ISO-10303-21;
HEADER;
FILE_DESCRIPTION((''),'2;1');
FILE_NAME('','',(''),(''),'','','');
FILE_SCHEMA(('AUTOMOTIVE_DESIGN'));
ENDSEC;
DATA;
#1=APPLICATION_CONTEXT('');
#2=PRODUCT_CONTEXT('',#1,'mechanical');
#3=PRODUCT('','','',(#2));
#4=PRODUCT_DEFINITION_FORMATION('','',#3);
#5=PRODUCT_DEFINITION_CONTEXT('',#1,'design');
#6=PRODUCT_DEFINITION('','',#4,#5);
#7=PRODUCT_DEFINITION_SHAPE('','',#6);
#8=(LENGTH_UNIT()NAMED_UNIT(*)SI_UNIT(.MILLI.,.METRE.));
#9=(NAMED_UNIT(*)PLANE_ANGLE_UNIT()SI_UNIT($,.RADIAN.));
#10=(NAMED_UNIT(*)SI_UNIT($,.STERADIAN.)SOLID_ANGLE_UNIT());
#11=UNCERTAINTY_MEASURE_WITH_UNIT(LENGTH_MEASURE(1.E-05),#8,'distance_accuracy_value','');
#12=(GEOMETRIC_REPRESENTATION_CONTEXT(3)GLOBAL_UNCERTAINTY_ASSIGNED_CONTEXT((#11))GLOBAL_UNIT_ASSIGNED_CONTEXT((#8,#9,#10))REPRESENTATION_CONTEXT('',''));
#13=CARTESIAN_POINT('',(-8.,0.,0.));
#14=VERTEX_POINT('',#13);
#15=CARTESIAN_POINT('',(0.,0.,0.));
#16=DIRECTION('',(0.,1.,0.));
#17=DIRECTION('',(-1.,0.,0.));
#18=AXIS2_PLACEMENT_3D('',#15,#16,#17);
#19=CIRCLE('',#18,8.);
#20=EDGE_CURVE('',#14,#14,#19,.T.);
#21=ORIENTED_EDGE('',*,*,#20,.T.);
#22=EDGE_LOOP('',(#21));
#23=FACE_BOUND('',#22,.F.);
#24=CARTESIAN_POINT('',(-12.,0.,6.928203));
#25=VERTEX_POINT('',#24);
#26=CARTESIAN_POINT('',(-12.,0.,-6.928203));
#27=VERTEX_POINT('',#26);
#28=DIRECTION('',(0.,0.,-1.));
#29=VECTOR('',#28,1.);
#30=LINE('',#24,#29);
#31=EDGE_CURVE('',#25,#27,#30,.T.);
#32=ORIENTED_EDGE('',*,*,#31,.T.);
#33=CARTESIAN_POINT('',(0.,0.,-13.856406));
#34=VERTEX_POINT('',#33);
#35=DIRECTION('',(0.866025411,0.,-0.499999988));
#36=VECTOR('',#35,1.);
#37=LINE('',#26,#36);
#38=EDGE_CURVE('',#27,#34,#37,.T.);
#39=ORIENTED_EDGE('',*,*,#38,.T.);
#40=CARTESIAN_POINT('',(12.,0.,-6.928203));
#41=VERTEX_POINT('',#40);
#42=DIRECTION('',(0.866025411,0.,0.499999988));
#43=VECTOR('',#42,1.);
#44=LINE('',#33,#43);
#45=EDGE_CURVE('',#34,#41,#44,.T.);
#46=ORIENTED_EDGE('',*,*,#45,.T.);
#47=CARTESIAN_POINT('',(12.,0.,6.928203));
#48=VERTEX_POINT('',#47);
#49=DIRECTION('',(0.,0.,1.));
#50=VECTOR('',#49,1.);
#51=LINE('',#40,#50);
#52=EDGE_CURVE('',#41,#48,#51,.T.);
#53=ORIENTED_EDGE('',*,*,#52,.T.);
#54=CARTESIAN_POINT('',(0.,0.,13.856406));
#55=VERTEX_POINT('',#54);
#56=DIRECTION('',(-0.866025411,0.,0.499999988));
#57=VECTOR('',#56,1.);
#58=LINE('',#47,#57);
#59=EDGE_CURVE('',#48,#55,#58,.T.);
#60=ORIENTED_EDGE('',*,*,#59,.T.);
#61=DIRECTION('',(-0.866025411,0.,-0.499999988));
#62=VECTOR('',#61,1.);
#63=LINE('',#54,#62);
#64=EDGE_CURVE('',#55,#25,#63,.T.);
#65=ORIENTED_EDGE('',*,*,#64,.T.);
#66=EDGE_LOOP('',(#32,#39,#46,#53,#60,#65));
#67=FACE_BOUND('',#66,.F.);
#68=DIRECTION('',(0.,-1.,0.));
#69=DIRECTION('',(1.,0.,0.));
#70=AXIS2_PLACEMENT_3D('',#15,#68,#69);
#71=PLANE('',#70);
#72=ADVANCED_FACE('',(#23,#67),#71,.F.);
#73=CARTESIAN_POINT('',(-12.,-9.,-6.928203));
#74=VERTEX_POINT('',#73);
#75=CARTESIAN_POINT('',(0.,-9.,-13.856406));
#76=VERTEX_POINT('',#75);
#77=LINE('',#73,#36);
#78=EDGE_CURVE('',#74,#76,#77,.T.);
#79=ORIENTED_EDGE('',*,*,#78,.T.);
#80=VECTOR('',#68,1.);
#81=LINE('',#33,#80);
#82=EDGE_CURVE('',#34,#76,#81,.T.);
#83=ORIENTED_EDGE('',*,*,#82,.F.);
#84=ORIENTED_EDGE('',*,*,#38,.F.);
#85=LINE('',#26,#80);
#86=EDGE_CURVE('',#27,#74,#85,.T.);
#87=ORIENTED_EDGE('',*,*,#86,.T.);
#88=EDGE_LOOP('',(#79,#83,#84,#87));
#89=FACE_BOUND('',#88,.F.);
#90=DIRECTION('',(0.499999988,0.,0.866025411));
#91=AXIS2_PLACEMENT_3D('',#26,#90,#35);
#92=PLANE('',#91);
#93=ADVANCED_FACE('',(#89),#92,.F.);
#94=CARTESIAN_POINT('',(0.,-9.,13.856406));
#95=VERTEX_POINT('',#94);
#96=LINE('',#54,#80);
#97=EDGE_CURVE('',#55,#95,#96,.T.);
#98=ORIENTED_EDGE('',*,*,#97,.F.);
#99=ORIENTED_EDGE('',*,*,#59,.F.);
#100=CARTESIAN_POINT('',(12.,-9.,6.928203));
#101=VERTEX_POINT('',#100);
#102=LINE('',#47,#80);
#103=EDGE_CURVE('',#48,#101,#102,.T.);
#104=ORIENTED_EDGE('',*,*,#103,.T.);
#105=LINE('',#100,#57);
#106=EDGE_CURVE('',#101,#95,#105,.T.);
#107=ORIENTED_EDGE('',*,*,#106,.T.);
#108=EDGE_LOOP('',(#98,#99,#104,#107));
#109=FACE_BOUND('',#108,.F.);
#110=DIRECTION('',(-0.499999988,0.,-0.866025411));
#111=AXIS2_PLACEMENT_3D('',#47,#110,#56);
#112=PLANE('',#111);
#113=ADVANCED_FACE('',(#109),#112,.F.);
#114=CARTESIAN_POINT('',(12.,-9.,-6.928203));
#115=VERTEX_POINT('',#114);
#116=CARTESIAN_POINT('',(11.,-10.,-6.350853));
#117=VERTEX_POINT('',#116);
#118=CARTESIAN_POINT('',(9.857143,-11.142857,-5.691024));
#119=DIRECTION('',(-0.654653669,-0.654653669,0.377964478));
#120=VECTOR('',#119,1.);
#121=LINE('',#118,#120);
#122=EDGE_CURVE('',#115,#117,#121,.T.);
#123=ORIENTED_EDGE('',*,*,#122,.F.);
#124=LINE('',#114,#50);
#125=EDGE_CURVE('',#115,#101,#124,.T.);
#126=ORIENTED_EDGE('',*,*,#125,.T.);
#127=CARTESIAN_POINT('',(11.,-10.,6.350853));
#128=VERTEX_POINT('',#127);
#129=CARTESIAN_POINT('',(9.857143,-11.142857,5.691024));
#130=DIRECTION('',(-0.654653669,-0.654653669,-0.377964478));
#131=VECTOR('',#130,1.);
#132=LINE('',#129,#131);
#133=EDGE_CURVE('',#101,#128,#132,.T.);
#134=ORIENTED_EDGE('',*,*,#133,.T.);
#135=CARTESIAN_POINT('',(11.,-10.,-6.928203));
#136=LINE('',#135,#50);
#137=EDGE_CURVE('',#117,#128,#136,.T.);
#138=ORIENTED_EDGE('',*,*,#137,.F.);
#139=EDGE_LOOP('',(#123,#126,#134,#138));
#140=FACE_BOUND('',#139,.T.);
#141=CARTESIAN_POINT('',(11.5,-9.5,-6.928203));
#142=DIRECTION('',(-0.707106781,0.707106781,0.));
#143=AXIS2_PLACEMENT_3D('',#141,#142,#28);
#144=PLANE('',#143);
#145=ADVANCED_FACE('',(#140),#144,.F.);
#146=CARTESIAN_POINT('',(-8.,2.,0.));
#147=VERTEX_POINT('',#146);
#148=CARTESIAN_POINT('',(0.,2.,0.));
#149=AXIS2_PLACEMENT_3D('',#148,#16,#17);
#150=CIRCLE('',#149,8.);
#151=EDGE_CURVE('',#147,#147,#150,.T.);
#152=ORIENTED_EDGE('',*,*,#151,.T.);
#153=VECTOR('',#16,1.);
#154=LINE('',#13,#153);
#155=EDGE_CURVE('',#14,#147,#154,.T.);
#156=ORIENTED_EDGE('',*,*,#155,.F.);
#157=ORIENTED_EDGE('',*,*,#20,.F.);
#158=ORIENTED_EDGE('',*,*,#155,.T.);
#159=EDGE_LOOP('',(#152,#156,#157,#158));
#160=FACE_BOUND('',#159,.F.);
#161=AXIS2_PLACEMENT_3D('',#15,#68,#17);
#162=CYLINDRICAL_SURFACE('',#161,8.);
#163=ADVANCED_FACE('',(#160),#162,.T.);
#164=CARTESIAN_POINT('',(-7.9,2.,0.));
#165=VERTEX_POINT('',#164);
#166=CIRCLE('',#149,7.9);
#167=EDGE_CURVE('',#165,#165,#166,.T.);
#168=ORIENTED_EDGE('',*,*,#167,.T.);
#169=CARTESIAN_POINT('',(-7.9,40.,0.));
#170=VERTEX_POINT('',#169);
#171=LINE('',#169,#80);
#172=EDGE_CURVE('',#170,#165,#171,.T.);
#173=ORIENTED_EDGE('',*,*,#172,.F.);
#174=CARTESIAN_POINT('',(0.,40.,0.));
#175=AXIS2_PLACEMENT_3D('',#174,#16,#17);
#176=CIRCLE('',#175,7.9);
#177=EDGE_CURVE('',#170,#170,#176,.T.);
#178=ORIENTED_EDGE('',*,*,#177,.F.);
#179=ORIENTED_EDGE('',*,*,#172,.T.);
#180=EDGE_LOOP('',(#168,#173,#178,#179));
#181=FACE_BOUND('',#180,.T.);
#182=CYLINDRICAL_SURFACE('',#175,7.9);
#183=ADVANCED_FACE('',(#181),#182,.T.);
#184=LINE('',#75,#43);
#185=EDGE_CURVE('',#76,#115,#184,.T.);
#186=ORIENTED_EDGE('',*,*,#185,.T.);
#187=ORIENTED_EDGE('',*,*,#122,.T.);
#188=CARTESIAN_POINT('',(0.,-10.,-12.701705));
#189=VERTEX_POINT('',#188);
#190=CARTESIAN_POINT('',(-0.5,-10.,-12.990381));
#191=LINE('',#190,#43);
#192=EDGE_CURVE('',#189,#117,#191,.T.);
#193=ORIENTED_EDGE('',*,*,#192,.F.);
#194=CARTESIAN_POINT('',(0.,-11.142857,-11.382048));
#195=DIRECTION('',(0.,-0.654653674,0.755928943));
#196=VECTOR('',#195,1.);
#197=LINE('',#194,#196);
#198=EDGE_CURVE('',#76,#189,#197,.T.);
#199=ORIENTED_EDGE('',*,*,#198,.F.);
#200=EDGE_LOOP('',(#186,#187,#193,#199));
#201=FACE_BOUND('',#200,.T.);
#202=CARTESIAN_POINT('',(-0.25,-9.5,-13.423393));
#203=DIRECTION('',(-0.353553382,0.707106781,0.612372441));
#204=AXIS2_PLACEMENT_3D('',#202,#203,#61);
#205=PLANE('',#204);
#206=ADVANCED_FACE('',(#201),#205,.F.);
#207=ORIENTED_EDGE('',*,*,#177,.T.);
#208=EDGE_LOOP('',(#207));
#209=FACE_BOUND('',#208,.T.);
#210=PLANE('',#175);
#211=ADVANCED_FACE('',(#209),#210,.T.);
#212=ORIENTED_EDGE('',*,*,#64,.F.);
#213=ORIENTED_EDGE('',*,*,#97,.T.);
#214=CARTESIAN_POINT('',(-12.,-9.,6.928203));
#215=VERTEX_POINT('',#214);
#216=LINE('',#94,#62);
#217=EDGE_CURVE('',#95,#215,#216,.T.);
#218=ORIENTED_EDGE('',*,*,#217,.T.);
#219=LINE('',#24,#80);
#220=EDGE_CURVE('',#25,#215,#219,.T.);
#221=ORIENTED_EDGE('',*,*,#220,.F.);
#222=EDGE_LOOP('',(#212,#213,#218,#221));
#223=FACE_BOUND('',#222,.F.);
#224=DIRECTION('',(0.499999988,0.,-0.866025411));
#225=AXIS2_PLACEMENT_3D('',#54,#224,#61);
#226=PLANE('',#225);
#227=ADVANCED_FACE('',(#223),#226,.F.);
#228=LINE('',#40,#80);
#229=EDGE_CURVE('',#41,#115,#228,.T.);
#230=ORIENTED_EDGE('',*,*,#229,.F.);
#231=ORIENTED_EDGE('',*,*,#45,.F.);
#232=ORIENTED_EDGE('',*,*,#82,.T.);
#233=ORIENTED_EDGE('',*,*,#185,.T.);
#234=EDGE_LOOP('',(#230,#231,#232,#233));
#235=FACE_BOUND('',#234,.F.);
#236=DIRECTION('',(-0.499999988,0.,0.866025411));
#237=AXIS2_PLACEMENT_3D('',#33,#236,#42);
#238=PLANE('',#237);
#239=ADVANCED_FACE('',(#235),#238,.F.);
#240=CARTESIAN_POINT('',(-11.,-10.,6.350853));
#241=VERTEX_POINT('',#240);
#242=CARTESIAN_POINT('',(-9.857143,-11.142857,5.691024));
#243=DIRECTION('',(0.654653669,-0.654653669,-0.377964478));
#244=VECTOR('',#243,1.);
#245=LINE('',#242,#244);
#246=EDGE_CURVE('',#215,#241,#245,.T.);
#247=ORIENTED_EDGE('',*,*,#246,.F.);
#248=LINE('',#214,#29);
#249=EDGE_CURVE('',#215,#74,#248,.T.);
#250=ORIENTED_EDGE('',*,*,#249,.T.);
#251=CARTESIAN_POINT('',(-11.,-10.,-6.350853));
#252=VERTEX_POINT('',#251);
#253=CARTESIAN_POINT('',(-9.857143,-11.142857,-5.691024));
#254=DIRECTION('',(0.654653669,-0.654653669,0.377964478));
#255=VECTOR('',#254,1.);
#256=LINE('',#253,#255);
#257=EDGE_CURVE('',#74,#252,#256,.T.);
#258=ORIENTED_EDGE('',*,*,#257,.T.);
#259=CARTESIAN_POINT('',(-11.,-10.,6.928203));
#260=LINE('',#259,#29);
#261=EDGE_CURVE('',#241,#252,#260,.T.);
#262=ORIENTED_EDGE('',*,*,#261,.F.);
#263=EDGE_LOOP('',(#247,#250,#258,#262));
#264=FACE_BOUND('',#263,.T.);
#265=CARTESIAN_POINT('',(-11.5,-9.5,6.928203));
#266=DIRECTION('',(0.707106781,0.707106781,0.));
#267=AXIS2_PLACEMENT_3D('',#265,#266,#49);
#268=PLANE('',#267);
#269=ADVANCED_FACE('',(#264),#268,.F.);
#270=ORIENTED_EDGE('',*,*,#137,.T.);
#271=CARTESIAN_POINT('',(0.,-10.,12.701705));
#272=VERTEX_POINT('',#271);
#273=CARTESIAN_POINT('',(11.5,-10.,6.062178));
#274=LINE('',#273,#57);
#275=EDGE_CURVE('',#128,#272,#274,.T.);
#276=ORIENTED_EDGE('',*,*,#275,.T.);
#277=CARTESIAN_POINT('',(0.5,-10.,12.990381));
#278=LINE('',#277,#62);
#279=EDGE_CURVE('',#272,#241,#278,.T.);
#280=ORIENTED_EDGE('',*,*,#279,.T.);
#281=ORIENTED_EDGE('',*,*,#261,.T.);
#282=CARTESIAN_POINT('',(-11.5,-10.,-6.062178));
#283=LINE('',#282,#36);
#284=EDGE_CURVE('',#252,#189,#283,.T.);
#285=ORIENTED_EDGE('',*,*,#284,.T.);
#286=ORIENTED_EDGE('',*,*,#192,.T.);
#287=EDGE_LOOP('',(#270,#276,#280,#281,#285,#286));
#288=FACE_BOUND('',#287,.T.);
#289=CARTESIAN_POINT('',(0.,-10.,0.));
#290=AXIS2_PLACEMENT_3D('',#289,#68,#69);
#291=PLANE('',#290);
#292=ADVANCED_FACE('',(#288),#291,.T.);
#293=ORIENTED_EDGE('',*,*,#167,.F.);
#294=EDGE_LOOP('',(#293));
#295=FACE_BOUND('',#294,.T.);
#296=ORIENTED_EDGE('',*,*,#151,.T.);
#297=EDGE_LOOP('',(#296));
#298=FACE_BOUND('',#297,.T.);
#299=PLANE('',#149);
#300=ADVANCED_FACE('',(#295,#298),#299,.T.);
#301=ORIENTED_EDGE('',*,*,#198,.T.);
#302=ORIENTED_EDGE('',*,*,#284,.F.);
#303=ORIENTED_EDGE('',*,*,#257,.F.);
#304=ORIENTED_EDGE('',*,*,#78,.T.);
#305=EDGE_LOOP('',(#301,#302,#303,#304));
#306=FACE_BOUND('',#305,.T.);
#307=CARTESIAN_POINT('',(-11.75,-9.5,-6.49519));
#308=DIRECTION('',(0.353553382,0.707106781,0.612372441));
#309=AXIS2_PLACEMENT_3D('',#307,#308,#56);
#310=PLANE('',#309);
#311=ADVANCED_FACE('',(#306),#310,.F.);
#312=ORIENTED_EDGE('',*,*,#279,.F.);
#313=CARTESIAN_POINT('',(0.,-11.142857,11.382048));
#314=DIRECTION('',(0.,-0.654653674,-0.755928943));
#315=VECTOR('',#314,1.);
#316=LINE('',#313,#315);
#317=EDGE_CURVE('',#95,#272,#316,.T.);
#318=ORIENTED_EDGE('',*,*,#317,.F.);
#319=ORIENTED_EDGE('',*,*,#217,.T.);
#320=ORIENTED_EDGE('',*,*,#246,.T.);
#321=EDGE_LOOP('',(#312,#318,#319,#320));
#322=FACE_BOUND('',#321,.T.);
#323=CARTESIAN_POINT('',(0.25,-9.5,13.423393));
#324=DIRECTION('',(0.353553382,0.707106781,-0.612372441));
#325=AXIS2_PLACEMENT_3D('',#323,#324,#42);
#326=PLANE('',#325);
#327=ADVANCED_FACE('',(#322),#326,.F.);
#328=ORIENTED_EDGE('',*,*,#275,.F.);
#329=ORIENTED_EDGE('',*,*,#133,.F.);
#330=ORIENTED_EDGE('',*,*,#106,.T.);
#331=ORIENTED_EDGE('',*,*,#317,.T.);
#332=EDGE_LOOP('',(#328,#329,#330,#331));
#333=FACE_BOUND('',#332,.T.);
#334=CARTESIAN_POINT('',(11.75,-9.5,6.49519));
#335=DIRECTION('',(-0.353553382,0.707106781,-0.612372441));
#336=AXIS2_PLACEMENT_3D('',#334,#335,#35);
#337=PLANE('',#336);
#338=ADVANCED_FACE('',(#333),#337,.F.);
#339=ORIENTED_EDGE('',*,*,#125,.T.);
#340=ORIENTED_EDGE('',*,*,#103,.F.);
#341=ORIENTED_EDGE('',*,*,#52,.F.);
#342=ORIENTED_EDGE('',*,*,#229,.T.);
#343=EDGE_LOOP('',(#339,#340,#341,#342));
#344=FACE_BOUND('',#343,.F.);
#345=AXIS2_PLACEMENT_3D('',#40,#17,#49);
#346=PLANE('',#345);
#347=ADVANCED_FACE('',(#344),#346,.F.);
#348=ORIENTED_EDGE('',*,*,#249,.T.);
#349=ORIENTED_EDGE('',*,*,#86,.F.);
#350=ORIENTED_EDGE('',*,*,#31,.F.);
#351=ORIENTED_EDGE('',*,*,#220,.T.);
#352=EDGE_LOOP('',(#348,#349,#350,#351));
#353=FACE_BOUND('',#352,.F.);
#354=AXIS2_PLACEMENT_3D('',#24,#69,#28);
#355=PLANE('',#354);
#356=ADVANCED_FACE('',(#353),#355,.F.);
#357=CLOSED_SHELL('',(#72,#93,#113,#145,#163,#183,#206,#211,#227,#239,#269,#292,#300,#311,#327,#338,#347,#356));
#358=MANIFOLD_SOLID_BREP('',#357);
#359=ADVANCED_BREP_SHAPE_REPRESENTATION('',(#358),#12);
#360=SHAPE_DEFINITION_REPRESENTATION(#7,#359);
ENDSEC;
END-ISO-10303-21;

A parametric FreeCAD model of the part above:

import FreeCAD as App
import Part
import Sketcher
from FreeCAD import Vector
Q = App.Units.Quantity


def edges_at(feature, points):
    """Names of the edges that pass closest to the given points."""
    edges = feature.Shape.Edges
    near = lambda p: min(range(len(edges)), key=lambda i: edges[i].distToShape(Part.Vertex(*p))[0])
    return sorted({f"Edge{near(p) + 1}" for p in points})

doc = App.newDocument("Part")
body = doc.addObject("PartDesign::Body", "Body")

# Sketch on XZ plane
sketch1 = body.newObject("Sketcher::SketchObject", "Sketch")
sketch1.AttachmentSupport = (doc.getObject("XZ_Plane"), [""])
sketch1.MapMode = "FlatFace"
sketch1.addGeometry([
    Part.LineSegment(Vector(0, -14, 0), Vector(12, -7, 0)),  # 0
    Part.LineSegment(Vector(12, -7, 0), Vector(12, 7, 0)),  # 1
    Part.LineSegment(Vector(12, 7, 0), Vector(0, 14, 0)),  # 2
    Part.LineSegment(Vector(0, 14, 0), Vector(-12, 7, 0)),  # 3
    Part.LineSegment(Vector(-12, 7, 0), Vector(-12, -7, 0)),  # 4
    Part.LineSegment(Vector(-12, -7, 0), Vector(0, -14, 0)),  # 5
], False)
sketch1.addConstraint([
    Sketcher.Constraint("Coincident", 0, 2, 1, 1),
    Sketcher.Constraint("Coincident", 1, 2, 2, 1),
    Sketcher.Constraint("Coincident", 2, 2, 3, 1),
    Sketcher.Constraint("Coincident", 3, 2, 4, 1),
    Sketcher.Constraint("Coincident", 4, 2, 5, 1),
    Sketcher.Constraint("Coincident", 5, 2, 0, 1),
    Sketcher.Constraint("Vertical", 1),
    Sketcher.Constraint("Vertical", 4),
    Sketcher.Constraint("Symmetric", 0, 2, 3, 2, -1, 1),
    Sketcher.Constraint("Symmetric", 2, 2, 5, 2, -1, 1),
    Sketcher.Constraint("PointOnObject", 2, 2, -2),
    Sketcher.Constraint("Parallel", 2, 5),
    Sketcher.Constraint("Horizontal", 1, 2, 3, 2),
    Sketcher.Constraint("Angle", 0, Q("29.999999 deg")),
    Sketcher.Constraint("DistanceX", -1, 1, 0, 2, 12.0),
    Sketcher.Constraint("DistanceY", 1, 1, 1, 2, 13.856406),
])
pad1 = body.newObject("PartDesign::Pad", "Pad")
pad1.Profile = sketch1
pad1.Length = 10
doc.recompute()

chamfer = body.newObject("PartDesign::Chamfer", "Chamfer")
chamfer.Base = (pad1, edges_at(pad1, [
    (6, -10, 10.392),
    (-6, -10, 10.392),
    (12, -10, 0),
    (6, -10, -10.392),
    (-6, -10, -10.392),
    (-12, -10, 0),
]))
chamfer.ChamferType = "Two distances"
chamfer.Size = 1
chamfer.Size2 = 1

# Sketch on XZ plane
sketch2 = body.newObject("Sketcher::SketchObject", "Sketch001")
sketch2.AttachmentSupport = (doc.getObject("XZ_Plane"), [""])
sketch2.MapMode = "FlatFace"
sketch2.addGeometry(Part.Circle(Vector(0, 0, 0), Vector(0, 0, 1), 8), False)
sketch2.addConstraint([
    Sketcher.Constraint("Coincident", 0, 3, -1, 1),
    Sketcher.Constraint("Diameter", 0, 16.0),
])
pad2 = body.newObject("PartDesign::Pad", "Pad001")
pad2.Profile = sketch2
pad2.Length = 40
pad2.Reversed = True

# Sketch on XZ plane
sketch3 = body.newObject("Sketcher::SketchObject", "Sketch002")
sketch3.AttachmentSupport = (doc.getObject("XZ_Plane"), [""])
sketch3.MapMode = "FlatFace"
sketch3.AttachmentOffset = App.Placement(Vector(0, 0, -40), App.Rotation())
sketch3.addGeometry([
    Part.Circle(Vector(0, 0, 0), Vector(0, 0, 1), 8),
    Part.Circle(Vector(0, 0, 0), Vector(0, 0, 1), 8),
], False)
sketch3.addConstraint([
    Sketcher.Constraint("Coincident", 0, 3, -1, 1),
    Sketcher.Constraint("Coincident", 1, 3, -1, 1),
    Sketcher.Constraint("Diameter", 0, 16.0),
    Sketcher.Constraint("Diameter", 1, 15.8),
])
pocket1 = body.newObject("PartDesign::Pocket", "Pocket")
pocket1.Profile = sketch3
pocket1.Length = 38
pocket1.Reversed = True

doc.recompute()
